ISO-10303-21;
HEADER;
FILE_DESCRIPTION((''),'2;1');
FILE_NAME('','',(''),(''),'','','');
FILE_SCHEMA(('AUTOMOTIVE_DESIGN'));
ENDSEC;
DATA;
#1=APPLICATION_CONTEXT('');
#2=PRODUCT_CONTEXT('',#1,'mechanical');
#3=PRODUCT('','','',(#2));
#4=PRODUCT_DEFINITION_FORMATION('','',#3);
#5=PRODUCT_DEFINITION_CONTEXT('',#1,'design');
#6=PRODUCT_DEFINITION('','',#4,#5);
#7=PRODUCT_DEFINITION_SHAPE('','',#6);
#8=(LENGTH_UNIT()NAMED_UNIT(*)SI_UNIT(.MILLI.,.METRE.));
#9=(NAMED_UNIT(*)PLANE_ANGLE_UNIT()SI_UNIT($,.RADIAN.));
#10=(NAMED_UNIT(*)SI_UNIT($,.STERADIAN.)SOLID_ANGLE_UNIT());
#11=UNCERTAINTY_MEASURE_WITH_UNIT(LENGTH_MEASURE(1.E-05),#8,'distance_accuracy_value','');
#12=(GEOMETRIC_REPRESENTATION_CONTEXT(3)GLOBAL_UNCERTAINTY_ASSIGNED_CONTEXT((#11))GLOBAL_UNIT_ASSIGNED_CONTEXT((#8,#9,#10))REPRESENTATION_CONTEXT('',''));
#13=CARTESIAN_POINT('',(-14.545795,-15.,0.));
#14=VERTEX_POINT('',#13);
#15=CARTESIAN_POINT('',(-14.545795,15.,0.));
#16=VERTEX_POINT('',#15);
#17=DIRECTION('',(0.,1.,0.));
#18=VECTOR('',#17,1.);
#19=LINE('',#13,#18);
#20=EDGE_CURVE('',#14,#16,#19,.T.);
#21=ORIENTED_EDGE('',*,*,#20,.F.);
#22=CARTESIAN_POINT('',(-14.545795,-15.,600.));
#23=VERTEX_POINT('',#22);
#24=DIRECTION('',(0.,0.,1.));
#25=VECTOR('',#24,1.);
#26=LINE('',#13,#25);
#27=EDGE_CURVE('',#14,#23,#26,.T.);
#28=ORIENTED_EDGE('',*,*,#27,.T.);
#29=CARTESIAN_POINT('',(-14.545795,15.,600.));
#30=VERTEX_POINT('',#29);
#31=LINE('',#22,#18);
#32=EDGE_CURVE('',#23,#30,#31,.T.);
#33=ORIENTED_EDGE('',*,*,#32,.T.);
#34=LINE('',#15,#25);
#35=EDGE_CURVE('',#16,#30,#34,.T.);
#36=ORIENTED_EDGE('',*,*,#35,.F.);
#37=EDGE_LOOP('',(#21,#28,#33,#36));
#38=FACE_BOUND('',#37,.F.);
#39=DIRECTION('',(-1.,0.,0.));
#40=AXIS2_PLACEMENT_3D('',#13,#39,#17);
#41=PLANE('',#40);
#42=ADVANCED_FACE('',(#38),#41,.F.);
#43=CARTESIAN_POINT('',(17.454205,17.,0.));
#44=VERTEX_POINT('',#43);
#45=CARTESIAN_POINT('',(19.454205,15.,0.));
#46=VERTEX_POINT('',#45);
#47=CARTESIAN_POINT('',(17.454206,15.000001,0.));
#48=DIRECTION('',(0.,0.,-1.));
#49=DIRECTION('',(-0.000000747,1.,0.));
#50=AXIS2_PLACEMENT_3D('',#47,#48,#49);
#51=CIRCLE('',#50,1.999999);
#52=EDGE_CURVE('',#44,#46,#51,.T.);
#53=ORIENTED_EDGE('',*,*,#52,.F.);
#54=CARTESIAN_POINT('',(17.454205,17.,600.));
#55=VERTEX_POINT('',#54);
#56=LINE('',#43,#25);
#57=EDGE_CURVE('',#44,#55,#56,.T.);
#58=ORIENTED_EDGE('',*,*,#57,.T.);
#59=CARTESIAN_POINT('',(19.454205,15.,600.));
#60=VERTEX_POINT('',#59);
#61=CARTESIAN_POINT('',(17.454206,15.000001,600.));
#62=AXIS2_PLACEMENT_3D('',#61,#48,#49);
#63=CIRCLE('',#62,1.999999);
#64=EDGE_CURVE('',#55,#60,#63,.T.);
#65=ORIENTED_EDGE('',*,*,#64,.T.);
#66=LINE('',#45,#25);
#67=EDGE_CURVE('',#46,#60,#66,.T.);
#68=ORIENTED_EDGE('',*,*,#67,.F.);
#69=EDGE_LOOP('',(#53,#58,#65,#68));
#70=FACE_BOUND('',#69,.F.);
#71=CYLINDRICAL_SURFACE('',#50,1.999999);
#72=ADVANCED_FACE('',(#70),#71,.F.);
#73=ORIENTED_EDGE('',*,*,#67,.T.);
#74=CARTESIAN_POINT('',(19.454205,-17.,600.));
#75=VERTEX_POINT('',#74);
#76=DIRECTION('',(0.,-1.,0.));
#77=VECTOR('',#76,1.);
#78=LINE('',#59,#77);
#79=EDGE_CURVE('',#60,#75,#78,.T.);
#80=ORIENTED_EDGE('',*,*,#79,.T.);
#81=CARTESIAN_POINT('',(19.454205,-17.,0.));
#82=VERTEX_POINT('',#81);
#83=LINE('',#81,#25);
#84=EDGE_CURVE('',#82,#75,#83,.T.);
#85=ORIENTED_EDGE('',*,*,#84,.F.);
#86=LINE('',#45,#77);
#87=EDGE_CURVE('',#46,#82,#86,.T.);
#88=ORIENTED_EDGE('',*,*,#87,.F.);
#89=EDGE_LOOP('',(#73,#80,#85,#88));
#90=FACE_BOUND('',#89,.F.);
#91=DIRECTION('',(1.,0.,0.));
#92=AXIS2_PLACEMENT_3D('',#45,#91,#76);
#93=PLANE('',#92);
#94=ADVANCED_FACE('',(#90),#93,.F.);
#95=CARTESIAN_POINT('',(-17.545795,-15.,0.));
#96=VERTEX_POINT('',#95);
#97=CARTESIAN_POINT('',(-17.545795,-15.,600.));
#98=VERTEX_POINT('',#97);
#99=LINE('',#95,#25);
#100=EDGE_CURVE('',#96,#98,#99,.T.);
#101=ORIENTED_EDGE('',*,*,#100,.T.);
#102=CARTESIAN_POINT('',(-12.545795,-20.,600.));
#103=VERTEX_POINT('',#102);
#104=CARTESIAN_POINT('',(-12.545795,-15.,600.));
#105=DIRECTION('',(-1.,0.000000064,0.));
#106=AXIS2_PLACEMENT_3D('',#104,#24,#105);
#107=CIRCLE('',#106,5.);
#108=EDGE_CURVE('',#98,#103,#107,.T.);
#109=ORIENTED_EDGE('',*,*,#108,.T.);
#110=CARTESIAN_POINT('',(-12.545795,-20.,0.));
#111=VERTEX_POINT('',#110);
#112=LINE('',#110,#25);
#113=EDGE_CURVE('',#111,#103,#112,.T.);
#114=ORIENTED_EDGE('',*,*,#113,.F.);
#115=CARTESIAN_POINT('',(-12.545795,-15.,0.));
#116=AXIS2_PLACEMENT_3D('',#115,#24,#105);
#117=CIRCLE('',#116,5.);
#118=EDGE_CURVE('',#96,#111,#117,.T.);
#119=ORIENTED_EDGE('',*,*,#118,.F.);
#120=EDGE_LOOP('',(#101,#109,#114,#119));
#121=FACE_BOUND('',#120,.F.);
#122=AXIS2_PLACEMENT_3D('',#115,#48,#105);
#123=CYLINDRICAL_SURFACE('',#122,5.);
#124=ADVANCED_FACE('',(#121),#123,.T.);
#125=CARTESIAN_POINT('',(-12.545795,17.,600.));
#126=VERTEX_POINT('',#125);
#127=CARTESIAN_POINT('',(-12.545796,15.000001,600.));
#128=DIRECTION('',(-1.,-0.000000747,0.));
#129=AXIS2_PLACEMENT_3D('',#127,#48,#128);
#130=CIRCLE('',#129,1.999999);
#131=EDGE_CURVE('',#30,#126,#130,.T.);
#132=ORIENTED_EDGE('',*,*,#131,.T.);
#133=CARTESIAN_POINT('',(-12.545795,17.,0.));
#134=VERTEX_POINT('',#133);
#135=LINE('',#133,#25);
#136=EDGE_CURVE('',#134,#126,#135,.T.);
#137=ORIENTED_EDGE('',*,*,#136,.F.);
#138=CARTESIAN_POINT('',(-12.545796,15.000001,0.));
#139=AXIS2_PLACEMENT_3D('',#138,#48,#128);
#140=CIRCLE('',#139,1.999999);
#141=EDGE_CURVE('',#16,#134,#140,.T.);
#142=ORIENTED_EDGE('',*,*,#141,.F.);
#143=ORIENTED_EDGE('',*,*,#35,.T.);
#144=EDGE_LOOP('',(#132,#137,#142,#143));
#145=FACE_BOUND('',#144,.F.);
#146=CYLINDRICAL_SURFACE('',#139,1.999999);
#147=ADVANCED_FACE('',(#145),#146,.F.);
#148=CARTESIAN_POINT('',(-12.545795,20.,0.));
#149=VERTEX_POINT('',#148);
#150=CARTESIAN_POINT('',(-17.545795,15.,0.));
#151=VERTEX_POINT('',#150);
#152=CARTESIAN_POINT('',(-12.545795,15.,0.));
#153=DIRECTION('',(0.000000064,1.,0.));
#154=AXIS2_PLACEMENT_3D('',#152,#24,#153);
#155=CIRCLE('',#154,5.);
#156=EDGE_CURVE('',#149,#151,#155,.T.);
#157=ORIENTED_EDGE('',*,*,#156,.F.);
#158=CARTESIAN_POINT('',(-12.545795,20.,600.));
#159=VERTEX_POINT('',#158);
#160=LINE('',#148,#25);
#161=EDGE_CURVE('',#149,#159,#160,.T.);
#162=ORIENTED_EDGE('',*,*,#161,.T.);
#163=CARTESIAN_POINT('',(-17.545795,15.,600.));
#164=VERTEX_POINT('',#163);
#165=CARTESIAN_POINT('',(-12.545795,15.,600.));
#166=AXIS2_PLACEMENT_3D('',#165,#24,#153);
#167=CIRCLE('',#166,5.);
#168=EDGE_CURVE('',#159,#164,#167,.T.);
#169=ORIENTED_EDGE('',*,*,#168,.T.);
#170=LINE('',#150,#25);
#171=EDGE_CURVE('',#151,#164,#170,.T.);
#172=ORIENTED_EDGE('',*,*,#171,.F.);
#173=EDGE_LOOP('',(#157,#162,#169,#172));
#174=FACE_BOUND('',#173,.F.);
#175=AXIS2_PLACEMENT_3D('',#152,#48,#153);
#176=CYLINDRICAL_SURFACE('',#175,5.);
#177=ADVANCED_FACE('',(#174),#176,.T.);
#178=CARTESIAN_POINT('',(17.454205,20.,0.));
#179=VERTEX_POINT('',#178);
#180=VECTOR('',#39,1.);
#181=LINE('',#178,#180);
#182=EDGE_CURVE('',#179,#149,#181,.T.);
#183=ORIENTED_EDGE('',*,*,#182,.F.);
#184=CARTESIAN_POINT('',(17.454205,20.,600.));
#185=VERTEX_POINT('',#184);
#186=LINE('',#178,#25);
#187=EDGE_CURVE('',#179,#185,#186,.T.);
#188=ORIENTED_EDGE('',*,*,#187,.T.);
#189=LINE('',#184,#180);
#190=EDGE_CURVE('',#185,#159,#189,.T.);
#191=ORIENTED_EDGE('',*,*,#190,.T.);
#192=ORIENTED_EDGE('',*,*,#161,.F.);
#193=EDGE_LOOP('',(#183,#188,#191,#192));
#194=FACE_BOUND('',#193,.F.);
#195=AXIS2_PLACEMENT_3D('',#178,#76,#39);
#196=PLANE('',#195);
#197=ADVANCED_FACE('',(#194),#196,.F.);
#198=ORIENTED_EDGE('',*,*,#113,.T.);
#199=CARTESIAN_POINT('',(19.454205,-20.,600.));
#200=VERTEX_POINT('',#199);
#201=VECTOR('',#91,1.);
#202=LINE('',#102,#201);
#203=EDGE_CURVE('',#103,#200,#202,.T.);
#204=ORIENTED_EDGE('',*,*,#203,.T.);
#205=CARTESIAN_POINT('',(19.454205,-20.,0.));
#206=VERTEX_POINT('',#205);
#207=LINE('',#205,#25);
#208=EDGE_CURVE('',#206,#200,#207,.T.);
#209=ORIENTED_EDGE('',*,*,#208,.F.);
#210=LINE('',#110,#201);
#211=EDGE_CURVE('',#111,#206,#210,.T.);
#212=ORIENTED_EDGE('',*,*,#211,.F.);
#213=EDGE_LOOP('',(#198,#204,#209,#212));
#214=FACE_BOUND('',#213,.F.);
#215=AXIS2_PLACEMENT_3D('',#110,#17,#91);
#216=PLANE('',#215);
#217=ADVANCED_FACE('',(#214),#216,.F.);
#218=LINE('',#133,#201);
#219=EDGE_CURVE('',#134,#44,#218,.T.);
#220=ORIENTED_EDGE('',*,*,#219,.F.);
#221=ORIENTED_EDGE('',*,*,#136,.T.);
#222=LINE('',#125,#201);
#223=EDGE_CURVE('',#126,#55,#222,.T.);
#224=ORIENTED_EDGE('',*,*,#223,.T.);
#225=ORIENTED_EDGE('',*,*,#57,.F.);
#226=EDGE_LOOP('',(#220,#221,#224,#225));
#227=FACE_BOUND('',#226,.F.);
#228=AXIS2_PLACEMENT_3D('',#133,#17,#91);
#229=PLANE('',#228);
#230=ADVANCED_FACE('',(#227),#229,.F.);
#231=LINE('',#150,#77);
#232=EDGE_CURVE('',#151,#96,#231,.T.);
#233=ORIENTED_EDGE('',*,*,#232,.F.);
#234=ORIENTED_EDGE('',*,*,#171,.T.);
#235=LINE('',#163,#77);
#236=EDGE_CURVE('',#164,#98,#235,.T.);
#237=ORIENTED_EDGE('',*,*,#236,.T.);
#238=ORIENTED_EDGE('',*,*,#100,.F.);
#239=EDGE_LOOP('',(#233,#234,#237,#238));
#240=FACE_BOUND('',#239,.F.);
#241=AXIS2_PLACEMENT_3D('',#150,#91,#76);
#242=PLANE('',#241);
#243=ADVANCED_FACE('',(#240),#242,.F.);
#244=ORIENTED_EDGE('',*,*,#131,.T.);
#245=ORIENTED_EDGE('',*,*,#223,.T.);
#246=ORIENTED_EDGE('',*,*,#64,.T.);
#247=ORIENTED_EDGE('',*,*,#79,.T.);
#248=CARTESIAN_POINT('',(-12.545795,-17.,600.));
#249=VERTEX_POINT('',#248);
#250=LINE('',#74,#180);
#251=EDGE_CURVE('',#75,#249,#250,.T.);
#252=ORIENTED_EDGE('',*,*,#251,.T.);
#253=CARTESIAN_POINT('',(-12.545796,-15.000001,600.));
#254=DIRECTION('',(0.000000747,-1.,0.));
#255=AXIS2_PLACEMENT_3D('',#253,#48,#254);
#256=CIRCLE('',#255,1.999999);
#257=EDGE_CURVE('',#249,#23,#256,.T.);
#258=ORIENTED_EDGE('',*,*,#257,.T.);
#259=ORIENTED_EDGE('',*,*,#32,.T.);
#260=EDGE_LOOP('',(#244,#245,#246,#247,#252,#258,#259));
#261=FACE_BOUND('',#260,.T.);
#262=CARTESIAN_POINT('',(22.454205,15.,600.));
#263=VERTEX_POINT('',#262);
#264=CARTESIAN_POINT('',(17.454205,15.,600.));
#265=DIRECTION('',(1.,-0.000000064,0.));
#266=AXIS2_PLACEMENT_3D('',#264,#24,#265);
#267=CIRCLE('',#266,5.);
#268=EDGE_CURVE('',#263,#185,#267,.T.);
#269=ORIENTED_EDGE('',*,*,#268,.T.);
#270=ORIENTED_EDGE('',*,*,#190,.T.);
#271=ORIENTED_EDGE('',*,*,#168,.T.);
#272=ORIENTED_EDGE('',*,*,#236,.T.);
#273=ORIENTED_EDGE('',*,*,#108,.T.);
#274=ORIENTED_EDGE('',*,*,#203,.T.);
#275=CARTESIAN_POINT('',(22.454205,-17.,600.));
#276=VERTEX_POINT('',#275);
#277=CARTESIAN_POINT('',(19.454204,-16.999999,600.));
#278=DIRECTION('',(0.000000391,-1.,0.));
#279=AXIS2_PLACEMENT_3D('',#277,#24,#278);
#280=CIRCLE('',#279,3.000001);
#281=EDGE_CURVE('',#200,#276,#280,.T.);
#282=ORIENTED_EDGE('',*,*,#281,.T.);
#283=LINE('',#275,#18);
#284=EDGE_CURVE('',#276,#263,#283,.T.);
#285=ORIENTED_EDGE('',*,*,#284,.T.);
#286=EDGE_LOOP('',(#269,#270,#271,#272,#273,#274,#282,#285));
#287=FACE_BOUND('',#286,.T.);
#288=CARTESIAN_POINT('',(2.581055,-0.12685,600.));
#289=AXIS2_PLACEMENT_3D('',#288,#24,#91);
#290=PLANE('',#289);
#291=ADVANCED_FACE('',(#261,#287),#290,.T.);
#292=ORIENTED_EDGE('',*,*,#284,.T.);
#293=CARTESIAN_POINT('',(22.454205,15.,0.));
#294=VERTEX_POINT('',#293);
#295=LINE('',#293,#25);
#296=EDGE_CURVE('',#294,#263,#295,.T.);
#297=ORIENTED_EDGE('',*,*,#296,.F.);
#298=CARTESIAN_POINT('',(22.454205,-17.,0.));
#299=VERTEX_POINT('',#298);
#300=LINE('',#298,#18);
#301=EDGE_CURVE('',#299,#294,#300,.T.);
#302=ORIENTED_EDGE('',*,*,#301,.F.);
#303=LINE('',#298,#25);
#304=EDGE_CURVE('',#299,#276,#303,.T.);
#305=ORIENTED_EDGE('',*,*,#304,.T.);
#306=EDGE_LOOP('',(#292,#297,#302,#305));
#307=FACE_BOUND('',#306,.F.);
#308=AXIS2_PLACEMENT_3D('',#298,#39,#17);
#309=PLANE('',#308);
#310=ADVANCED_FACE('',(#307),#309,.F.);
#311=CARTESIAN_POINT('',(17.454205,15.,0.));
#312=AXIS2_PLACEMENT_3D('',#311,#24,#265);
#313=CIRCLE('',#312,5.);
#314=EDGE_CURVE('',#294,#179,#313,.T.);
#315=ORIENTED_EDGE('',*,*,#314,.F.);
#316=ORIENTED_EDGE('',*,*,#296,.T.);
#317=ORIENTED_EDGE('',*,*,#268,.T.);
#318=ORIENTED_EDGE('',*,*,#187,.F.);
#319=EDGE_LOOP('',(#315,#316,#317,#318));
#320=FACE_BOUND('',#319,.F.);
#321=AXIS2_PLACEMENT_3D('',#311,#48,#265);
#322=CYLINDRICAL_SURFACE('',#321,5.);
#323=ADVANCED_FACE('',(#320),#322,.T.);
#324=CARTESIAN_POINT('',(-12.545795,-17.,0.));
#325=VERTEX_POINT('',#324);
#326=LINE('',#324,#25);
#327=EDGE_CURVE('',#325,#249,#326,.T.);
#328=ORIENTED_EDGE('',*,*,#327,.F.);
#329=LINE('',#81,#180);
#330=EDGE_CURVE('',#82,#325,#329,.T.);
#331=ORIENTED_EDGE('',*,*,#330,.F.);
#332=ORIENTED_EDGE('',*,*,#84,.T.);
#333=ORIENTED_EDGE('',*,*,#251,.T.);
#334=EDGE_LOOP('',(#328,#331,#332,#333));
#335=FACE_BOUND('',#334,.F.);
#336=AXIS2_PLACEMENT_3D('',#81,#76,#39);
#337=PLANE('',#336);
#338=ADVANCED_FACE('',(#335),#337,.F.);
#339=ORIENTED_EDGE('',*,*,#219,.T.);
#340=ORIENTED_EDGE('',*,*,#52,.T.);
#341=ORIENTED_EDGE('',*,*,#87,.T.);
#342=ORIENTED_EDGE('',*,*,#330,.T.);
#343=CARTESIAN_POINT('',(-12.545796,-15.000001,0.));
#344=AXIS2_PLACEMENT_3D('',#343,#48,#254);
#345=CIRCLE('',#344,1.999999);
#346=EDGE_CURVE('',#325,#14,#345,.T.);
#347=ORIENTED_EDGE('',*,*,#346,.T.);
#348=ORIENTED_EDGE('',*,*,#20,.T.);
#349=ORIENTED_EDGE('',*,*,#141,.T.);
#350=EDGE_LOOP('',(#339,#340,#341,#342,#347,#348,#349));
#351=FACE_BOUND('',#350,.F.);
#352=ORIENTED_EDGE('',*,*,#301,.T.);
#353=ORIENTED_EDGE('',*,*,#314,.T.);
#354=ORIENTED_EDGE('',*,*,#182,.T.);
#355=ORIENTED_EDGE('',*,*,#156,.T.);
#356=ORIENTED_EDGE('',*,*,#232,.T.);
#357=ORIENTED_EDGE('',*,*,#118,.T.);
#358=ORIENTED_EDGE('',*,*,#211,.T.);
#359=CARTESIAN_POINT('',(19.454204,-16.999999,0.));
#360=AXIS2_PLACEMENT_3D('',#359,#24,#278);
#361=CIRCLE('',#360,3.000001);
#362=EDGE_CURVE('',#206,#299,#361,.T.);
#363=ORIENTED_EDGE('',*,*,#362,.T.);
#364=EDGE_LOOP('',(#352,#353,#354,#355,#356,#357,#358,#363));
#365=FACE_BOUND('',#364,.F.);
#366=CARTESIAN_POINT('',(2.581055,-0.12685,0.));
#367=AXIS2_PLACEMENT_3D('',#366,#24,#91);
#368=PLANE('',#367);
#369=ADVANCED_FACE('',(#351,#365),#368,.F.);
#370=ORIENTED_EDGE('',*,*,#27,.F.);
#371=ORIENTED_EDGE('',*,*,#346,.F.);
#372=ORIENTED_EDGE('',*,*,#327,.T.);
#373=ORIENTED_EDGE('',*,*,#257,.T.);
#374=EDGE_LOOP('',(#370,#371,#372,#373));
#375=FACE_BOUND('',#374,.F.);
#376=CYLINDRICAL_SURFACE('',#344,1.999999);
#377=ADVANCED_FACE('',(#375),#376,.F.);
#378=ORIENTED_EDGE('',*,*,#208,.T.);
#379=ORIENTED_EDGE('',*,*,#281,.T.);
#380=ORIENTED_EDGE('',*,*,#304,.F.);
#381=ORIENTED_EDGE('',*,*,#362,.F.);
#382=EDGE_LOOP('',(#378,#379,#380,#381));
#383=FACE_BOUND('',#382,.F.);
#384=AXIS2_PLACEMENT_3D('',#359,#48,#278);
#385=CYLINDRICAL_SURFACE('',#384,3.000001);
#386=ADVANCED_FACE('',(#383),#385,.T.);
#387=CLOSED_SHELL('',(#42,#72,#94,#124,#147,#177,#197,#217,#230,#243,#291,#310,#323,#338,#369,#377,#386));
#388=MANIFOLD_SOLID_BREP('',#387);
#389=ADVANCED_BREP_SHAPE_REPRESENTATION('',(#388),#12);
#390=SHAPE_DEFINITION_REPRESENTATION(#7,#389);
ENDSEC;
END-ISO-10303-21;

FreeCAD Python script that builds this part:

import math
import FreeCAD as App
import Part
import Sketcher
from FreeCAD import Vector

doc = App.newDocument("Part")
body = doc.addObject("PartDesign::Body", "Body")

# Sketch on XY plane
sketch1 = body.newObject("Sketcher::SketchObject", "Sketch")
sketch1.AttachmentSupport = (doc.getObject("XY_Plane"), [""])
sketch1.MapMode = "FlatFace"
sketch1.addGeometry([
    Part.ArcOfCircle(Part.Circle(Vector(17.5, 15, 0), Vector(0, 0, 1), 5), math.radians(0), math.radians(90)),  # 0
    Part.LineSegment(Vector(17.5, 20, 0), Vector(-12.5, 20, 0)),  # 1
    Part.ArcOfCircle(Part.Circle(Vector(-12.5, 15, 0), Vector(0, 0, 1), 5), math.radians(90), math.radians(180)),  # 2
    Part.LineSegment(Vector(-17.5, 15, 0), Vector(-17.5, -15, 0)),  # 3
    Part.ArcOfCircle(Part.Circle(Vector(-12.5, -15, 0), Vector(0, 0, 1), 5), math.radians(180), math.radians(270)),  # 4
    Part.LineSegment(Vector(-12.5, -20, 0), Vector(19.5, -20, 0)),  # 5
    Part.ArcOfCircle(Part.Circle(Vector(19.5, -17, 0), Vector(0, 0, 1), 3), math.radians(-90), math.radians(0)),  # 6
    Part.LineSegment(Vector(22.5, -17, 0), Vector(22.5, 15, 0)),  # 7
    Part.ArcOfCircle(Part.Circle(Vector(-12.5, 15, 0), Vector(0, 0, 1), 2), math.radians(90), math.radians(180)),  # 8
    Part.LineSegment(Vector(-12.5, 17, 0), Vector(17.5, 17, 0)),  # 9
    Part.ArcOfCircle(Part.Circle(Vector(17.5, 15, 0), Vector(0, 0, 1), 2), math.radians(0), math.radians(90)),  # 10
    Part.LineSegment(Vector(19.5, 15, 0), Vector(19.5, -17, 0)),  # 11
    Part.LineSegment(Vector(19.5, -17, 0), Vector(-12.5, -17, 0)),  # 12
    Part.ArcOfCircle(Part.Circle(Vector(-12.5, -15, 0), Vector(0, 0, 1), 2), math.radians(180), math.radians(270)),  # 13
    Part.LineSegment(Vector(-14.5, -15, 0), Vector(-14.5, 15, 0)),  # 14
], False)
sketch1.addConstraint([
    Sketcher.Constraint("Tangent", 0, 2, 1, 1),
    Sketcher.Constraint("Tangent", 1, 2, 2, 1),
    Sketcher.Constraint("Tangent", 2, 2, 3, 1),
    Sketcher.Constraint("Tangent", 3, 2, 4, 1),
    Sketcher.Constraint("Tangent", 4, 2, 5, 1),
    Sketcher.Constraint("Tangent", 5, 2, 6, 1),
    Sketcher.Constraint("Tangent", 6, 2, 7, 1),
    Sketcher.Constraint("Tangent", 7, 2, 0, 1),
    Sketcher.Constraint("Tangent", 8, 1, 9, 1),
    Sketcher.Constraint("Tangent", 9, 2, 10, 2),
    Sketcher.Constraint("Tangent", 10, 1, 11, 1),
    Sketcher.Constraint("Coincident", 11, 2, 12, 1),
    Sketcher.Constraint("Tangent", 12, 2, 13, 2),
    Sketcher.Constraint("Tangent", 13, 1, 14, 1),
    Sketcher.Constraint("Tangent", 14, 2, 8, 2),
    Sketcher.Constraint("Horizontal", 1),
    Sketcher.Constraint("Vertical", 3),
    Sketcher.Constraint("Horizontal", 5),
    Sketcher.Constraint("Vertical", 7),
    Sketcher.Constraint("Horizontal", 9),
    Sketcher.Constraint("Vertical", 11),
    Sketcher.Constraint("Horizontal", 12),
    Sketcher.Constraint("Vertical", 14),
    Sketcher.Constraint("Coincident", 8, 3, 2, 3),
    Sketcher.Constraint("Coincident", 10, 3, 0, 3),
    Sketcher.Constraint("Coincident", 13, 3, 4, 3),
    Sketcher.Constraint("Equal", 0, 2),
    Sketcher.Constraint("Equal", 2, 4),
    Sketcher.Constraint("Horizontal", 6, 2, 11, 2),
    Sketcher.Constraint("Equal", 9, 3),
    Sketcher.Constraint("Radius", 0, 5.0),
    Sketcher.Constraint("Radius", 6, 3.000001),
    Sketcher.Constraint("DistanceX", 1, 2, 1, 1, 30.0),
    Sketcher.Constraint("DistanceY", -1, 1, 0, 3, 15.0),
    Sketcher.Constraint("DistanceX", -1, 1, 0, 3, 17.454205),
])
pad1 = body.newObject("PartDesign::Pad", "Pad")
pad1.Profile = sketch1
pad1.Length = 600

doc.recompute()
